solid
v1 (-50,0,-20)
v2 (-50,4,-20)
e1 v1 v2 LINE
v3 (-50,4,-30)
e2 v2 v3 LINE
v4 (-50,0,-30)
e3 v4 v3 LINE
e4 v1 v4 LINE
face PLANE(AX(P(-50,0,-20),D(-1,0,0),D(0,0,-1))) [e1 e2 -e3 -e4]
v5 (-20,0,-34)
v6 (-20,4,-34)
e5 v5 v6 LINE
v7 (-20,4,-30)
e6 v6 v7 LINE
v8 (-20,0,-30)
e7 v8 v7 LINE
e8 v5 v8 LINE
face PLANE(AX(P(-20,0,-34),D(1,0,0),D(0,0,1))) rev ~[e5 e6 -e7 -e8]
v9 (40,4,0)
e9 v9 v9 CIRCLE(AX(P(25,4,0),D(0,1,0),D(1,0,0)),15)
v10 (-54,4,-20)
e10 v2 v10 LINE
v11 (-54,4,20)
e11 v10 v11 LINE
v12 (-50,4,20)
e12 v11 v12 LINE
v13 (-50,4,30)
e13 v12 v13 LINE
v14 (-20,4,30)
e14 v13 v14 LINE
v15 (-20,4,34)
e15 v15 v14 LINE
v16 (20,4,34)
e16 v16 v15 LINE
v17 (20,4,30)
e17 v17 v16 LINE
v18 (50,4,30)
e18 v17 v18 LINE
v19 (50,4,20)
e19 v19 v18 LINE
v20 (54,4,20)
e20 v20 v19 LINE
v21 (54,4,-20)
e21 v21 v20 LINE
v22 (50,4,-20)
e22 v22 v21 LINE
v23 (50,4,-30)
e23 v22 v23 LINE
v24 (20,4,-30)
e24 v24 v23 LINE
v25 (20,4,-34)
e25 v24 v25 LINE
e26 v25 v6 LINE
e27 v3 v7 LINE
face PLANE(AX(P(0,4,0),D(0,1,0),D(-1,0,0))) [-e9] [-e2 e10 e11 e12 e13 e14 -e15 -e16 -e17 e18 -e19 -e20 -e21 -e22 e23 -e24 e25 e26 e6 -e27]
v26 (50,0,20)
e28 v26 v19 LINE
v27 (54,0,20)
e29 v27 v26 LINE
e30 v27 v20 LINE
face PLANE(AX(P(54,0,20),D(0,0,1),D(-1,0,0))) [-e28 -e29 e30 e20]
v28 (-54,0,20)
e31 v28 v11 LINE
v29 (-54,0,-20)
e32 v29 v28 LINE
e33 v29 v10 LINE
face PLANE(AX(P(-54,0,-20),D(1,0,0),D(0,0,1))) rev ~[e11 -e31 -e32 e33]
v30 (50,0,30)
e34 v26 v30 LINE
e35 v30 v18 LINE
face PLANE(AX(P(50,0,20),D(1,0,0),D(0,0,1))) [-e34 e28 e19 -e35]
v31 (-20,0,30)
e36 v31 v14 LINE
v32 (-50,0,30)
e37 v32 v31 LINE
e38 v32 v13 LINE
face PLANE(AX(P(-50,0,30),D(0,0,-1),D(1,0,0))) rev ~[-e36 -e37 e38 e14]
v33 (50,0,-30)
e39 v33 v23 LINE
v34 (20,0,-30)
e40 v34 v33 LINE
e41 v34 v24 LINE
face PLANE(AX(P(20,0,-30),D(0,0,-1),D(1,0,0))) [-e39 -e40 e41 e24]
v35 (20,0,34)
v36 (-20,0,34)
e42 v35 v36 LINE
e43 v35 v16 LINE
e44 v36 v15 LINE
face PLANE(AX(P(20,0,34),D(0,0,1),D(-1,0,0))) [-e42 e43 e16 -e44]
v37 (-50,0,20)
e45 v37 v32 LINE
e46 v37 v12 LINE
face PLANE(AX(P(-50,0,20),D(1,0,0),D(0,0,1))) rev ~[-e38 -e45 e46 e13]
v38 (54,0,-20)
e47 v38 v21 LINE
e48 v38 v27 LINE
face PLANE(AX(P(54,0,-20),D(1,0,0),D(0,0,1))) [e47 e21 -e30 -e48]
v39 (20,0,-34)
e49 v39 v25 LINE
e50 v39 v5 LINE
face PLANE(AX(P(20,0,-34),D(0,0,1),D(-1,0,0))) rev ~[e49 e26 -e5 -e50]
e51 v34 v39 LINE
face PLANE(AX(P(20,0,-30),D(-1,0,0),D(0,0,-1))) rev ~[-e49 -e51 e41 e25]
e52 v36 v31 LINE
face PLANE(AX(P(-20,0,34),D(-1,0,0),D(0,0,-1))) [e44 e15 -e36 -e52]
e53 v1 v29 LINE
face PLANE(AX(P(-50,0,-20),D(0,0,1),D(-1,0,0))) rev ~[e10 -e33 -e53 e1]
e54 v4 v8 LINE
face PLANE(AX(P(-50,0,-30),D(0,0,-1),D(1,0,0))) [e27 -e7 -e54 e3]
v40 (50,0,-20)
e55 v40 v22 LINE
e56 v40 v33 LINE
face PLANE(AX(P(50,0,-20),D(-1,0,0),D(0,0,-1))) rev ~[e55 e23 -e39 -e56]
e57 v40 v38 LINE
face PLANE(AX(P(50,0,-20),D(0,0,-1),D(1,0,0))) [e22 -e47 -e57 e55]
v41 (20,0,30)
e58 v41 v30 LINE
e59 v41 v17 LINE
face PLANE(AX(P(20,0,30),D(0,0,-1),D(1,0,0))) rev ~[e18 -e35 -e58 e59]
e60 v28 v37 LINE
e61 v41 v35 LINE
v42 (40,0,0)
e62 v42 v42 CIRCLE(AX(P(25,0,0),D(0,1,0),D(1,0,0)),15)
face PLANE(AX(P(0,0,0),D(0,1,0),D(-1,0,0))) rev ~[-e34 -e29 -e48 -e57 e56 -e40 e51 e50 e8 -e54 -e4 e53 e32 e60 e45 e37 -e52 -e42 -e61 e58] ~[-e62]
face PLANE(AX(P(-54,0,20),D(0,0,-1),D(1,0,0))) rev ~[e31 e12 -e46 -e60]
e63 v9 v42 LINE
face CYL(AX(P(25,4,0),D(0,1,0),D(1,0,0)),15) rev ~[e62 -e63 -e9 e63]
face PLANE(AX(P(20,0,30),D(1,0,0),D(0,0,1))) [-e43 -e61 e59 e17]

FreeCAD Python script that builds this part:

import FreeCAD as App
import Part
import Sketcher

doc = App.newDocument("Part")
body = doc.addObject("PartDesign::Body", "Body")

sketch1 = doc.addObject("Sketcher::SketchObject", "Sketch")
body.addObject(sketch1)
sketch1.AttachmentSupport = (doc.XZ_Plane, [""])
sketch1.MapMode = "FlatFace"
sketch1.addGeometry(Part.LineSegment(App.Vector(20, 34, 0), App.Vector(20, 30, 0)), False)
sketch1.addGeometry(Part.LineSegment(App.Vector(20, 30, 0), App.Vector(50, 30, 0)), False)
sketch1.addGeometry(Part.LineSegment(App.Vector(50, 30, 0), App.Vector(50, 20, 0)), False)
sketch1.addGeometry(Part.LineSegment(App.Vector(50, 20, 0), App.Vector(54, 20, 0)), False)
sketch1.addGeometry(Part.LineSegment(App.Vector(54, 20, 0), App.Vector(54, -20, 0)), False)
sketch1.addGeometry(Part.LineSegment(App.Vector(54, -20, 0), App.Vector(50, -20, 0)), False)
sketch1.addGeometry(Part.LineSegment(App.Vector(50, -20, 0), App.Vector(50, -30, 0)), False)
sketch1.addGeometry(Part.LineSegment(App.Vector(50, -30, 0), App.Vector(20, -30, 0)), False)
sketch1.addGeometry(Part.LineSegment(App.Vector(20, -30, 0), App.Vector(20, -34, 0)), False)
sketch1.addGeometry(Part.LineSegment(App.Vector(20, -34, 0), App.Vector(-20, -34, 0)), False)
sketch1.addGeometry(Part.LineSegment(App.Vector(-20, -34, 0), App.Vector(-20, -30, 0)), False)
sketch1.addGeometry(Part.LineSegment(App.Vector(-20, -30, 0), App.Vector(-50, -30, 0)), False)
sketch1.addGeometry(Part.LineSegment(App.Vector(-50, -30, 0), App.Vector(-50, -20, 0)), False)
sketch1.addGeometry(Part.LineSegment(App.Vector(-50, -20, 0), App.Vector(-54, -20, 0)), False)
sketch1.addGeometry(Part.LineSegment(App.Vector(-54, -20, 0), App.Vector(-54, 20, 0)), False)
sketch1.addGeometry(Part.LineSegment(App.Vector(-54, 20, 0), App.Vector(-50, 20, 0)), False)
sketch1.addGeometry(Part.LineSegment(App.Vector(-50, 20, 0), App.Vector(-50, 30, 0)), False)
sketch1.addGeometry(Part.LineSegment(App.Vector(-50, 30, 0), App.Vector(-20, 30, 0)), False)
sketch1.addGeometry(Part.LineSegment(App.Vector(-20, 30, 0), App.Vector(-20, 34, 0)), False)
sketch1.addGeometry(Part.LineSegment(App.Vector(-20, 34, 0), App.Vector(20, 34, 0)), False)
sketch1.addConstraint(Sketcher.Constraint("Coincident", 0, 2, 1, 1))
sketch1.addConstraint(Sketcher.Constraint("Coincident", 1, 2, 2, 1))
sketch1.addConstraint(Sketcher.Constraint("Coincident", 2, 2, 3, 1))
sketch1.addConstraint(Sketcher.Constraint("Coincident", 3, 2, 4, 1))
sketch1.addConstraint(Sketcher.Constraint("Coincident", 4, 2, 5, 1))
sketch1.addConstraint(Sketcher.Constraint("Coincident", 5, 2, 6, 1))
sketch1.addConstraint(Sketcher.Constraint("Coincident", 6, 2, 7, 1))
sketch1.addConstraint(Sketcher.Constraint("Coincident", 7, 2, 8, 1))
sketch1.addConstraint(Sketcher.Constraint("Coincident", 8, 2, 9, 1))
sketch1.addConstraint(Sketcher.Constraint("Coincident", 9, 2, 10, 1))
sketch1.addConstraint(Sketcher.Constraint("Coincident", 10, 2, 11, 1))
sketch1.addConstraint(Sketcher.Constraint("Coincident", 11, 2, 12, 1))
sketch1.addConstraint(Sketcher.Constraint("Coincident", 12, 2, 13, 1))
sketch1.addConstraint(Sketcher.Constraint("Coincident", 13, 2, 14, 1))
sketch1.addConstraint(Sketcher.Constraint("Coincident", 14, 2, 15, 1))
sketch1.addConstraint(Sketcher.Constraint("Coincident", 15, 2, 16, 1))
sketch1.addConstraint(Sketcher.Constraint("Coincident", 16, 2, 17, 1))
sketch1.addConstraint(Sketcher.Constraint("Coincident", 17, 2, 18, 1))
sketch1.addConstraint(Sketcher.Constraint("Coincident", 18, 2, 19, 1))
sketch1.addConstraint(Sketcher.Constraint("Coincident", 19, 2, 0, 1))
sketch1.addConstraint(Sketcher.Constraint("Vertical", 0))
sketch1.addConstraint(Sketcher.Constraint("Horizontal", 1))
sketch1.addConstraint(Sketcher.Constraint("Vertical", 2))
sketch1.addConstraint(Sketcher.Constraint("Horizontal", 3))
sketch1.addConstraint(Sketcher.Constraint("Vertical", 4))
sketch1.addConstraint(Sketcher.Constraint("Horizontal", 5))
sketch1.addConstraint(Sketcher.Constraint("Vertical", 6))
sketch1.addConstraint(Sketcher.Constraint("Horizontal", 7))
sketch1.addConstraint(Sketcher.Constraint("Vertical", 8))
sketch1.addConstraint(Sketcher.Constraint("Horizontal", 9))
sketch1.addConstraint(Sketcher.Constraint("Vertical", 10))
sketch1.addConstraint(Sketcher.Constraint("Horizontal", 11))
sketch1.addConstraint(Sketcher.Constraint("Vertical", 12))
sketch1.addConstraint(Sketcher.Constraint("Horizontal", 13))
sketch1.addConstraint(Sketcher.Constraint("Vertical", 14))
sketch1.addConstraint(Sketcher.Constraint("Horizontal", 15))
sketch1.addConstraint(Sketcher.Constraint("Vertical", 16))
sketch1.addConstraint(Sketcher.Constraint("Horizontal", 17))
sketch1.addConstraint(Sketcher.Constraint("Vertical", 18))
sketch1.addConstraint(Sketcher.Constraint("Horizontal", 19))
sketch1.addConstraint(Sketcher.Constraint("Symmetric", 0, 2, 10, 2, -1, 1))
sketch1.addConstraint(Sketcher.Constraint("Symmetric", 2, 2, 12, 2, -1, 1))
sketch1.addConstraint(Sketcher.Constraint("Symmetric", 4, 2, 14, 2, -1, 1))
sketch1.addConstraint(Sketcher.Constraint("Symmetric", 6, 2, 16, 2, -1, 1))
sketch1.addConstraint(Sketcher.Constraint("Symmetric", 8, 2, 18, 2, -1, 1))
sketch1.addConstraint(Sketcher.Constraint("Symmetric", 7, 2, 10, 2, -2))
sketch1.addConstraint(Sketcher.Constraint("Symmetric", 5, 2, 12, 2, -2))
sketch1.addConstraint(Sketcher.Constraint("Equal", 15, 0))
sketch1.addConstraint(Sketcher.Constraint("Equal", 19, 4))
sketch1.addConstraint(Sketcher.Constraint("DistanceX", 3, 1, 3, 2, 4.0))
sketch1.addConstraint(Sketcher.Constraint("DistanceX", 9, 2, 9, 1, 40.0))
sketch1.addConstraint(Sketcher.Constraint("DistanceY", 6, 2, 1, 2, 60.0))
sketch1.addConstraint(Sketcher.Constraint("DistanceX", 1, 1, 1, 2, 30.0))
pad1 = doc.addObject("PartDesign::Pad", "Pad")
body.addObject(pad1)
pad1.Profile = sketch1
pad1.Length = 4
pad1.Reversed = True

sketch2 = doc.addObject("Sketcher::SketchObject", "Sketch001")
body.addObject(sketch2)
sketch2.AttachmentSupport = (doc.XZ_Plane, [""])
sketch2.MapMode = "FlatFace"
sketch2.AttachmentOffset = App.Placement(App.Vector(0, 0, -4), App.Rotation())
sketch2.addGeometry(Part.Circle(App.Vector(25, 0, 0), App.Vector(0, 0, 1), 15), False)
sketch2.addConstraint(Sketcher.Constraint("PointOnObject", 0, 3, -1))
sketch2.addConstraint(Sketcher.Constraint("Diameter", 0, 30.0))
sketch2.addConstraint(Sketcher.Constraint("DistanceX", -1, 1, 0, 3, 25.0))
pocket1 = doc.addObject("PartDesign::Pocket", "Pocket")
body.addObject(pocket1)
pocket1.Profile = sketch2
pocket1.Length = 4
pocket1.Reversed = True

doc.recompute()
